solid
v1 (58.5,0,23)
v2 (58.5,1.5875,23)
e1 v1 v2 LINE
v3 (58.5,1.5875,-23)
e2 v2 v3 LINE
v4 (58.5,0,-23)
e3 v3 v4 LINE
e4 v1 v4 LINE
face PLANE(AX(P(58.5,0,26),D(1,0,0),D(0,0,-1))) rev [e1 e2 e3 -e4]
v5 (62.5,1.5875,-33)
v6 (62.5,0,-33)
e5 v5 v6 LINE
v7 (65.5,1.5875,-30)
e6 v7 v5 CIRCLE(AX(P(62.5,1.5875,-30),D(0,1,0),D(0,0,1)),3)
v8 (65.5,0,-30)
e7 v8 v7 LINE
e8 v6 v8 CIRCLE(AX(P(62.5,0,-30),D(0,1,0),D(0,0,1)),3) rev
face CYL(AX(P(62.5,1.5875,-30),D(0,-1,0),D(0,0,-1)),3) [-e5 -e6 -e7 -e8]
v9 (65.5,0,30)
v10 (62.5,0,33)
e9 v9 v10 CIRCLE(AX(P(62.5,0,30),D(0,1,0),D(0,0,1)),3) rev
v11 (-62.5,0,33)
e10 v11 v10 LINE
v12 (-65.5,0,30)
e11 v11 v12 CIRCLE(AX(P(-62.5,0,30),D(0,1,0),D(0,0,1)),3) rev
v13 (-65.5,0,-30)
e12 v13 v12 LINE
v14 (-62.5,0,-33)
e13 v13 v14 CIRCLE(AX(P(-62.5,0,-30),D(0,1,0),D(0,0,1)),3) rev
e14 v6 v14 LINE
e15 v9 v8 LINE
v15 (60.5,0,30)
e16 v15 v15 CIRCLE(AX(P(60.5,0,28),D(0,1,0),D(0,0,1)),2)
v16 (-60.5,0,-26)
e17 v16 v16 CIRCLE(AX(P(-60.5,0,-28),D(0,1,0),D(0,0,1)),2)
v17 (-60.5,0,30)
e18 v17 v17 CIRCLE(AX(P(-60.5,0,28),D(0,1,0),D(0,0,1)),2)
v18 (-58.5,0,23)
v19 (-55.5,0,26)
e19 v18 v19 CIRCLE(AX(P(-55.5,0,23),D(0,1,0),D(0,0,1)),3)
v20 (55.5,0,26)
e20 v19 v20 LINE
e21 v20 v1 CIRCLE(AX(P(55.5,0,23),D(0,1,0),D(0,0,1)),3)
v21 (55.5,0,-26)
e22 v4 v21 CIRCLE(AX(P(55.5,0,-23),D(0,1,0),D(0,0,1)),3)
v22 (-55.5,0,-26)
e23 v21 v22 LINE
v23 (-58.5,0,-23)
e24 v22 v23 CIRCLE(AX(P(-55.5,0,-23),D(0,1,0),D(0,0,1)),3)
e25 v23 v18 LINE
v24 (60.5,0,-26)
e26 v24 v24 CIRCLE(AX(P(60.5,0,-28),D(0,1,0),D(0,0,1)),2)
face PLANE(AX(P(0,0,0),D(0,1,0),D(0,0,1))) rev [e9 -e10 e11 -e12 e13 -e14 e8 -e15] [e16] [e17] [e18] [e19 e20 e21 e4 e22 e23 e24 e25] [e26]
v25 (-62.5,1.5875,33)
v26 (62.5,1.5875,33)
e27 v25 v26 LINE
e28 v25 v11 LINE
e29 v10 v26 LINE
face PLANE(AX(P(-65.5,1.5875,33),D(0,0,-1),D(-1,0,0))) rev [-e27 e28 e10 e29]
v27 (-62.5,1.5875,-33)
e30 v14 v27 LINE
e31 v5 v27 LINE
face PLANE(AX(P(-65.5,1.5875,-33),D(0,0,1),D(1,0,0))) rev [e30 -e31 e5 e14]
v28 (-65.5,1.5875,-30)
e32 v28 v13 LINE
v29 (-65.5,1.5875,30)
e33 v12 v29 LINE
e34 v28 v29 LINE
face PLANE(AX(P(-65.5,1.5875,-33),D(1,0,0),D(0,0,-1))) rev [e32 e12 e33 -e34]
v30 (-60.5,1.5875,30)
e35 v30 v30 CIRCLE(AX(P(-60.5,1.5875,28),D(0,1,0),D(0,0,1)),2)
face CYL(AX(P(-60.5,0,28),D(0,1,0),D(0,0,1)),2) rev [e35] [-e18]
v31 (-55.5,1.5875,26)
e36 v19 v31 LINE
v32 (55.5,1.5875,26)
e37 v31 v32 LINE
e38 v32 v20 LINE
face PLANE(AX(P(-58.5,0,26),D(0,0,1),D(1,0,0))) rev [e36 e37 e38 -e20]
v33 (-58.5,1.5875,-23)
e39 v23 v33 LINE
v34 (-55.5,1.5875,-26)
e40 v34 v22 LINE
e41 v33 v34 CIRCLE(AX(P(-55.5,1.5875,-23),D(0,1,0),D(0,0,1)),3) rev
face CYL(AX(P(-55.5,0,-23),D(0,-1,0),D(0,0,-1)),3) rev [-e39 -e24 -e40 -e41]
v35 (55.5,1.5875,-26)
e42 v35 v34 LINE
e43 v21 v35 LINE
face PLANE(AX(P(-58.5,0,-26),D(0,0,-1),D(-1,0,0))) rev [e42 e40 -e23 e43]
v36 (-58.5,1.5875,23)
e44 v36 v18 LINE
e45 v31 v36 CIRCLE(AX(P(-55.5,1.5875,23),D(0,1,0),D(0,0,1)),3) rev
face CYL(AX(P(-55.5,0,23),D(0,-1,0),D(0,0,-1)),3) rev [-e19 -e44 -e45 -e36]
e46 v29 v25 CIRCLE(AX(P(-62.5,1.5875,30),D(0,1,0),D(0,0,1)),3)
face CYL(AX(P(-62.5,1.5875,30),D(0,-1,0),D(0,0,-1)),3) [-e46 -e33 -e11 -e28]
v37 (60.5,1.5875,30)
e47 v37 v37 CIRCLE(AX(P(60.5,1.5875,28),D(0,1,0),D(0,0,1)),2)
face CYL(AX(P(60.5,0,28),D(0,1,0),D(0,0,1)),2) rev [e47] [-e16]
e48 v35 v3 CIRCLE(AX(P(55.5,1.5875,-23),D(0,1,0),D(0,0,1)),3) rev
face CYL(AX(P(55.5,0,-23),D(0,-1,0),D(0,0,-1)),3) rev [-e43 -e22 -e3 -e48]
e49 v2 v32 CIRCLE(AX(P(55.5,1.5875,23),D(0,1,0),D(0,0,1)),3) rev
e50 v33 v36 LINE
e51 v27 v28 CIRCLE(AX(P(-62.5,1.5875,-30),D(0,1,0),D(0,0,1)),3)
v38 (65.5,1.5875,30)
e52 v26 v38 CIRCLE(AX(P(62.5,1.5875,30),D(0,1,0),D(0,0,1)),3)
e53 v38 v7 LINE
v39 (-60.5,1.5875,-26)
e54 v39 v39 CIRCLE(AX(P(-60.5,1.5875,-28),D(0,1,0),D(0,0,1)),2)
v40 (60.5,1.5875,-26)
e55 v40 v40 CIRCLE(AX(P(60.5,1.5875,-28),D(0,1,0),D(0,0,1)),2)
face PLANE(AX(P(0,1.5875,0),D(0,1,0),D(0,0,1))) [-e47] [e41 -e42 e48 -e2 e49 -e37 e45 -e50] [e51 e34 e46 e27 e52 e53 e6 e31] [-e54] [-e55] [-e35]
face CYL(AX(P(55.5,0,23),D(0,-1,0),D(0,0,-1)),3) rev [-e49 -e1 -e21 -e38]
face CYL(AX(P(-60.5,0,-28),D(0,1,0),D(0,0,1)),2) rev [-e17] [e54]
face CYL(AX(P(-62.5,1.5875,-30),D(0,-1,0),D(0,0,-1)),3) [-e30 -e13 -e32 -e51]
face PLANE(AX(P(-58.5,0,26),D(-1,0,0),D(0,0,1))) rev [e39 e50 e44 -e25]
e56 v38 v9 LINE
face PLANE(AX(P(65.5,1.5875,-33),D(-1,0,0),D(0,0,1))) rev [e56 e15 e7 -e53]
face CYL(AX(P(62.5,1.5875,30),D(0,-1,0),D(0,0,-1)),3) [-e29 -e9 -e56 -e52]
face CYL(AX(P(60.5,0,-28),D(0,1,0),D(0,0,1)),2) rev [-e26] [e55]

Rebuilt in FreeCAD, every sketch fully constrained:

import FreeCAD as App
import Part
import Sketcher

V = App.Vector
Q = App.Units.Quantity


def edges_at(feature, points):
    """Names of the edges that pass closest to the given points."""
    edges = feature.Shape.Edges
    near = lambda p: min(range(len(edges)), key=lambda i: edges[i].distToShape(Part.Vertex(*p))[0])
    return sorted({f"Edge{near(p) + 1}" for p in points})

doc = App.newDocument("Part")
body = doc.addObject("PartDesign::Body", "Body")

sketch1 = doc.addObject("Sketcher::SketchObject", "Sketch")
body.addObject(sketch1)
sketch1.AttachmentSupport = (doc.XZ_Plane, [""])
sketch1.MapMode = "FlatFace"
sketch1.addGeometry([
    Part.LineSegment(V(-66, -33, 0), V(-66, 33, 0)),
    Part.LineSegment(V(-66, 33, 0), V(66, 33, 0)),
    Part.LineSegment(V(66, 33, 0), V(66, -33, 0)),
    Part.LineSegment(V(66, -33, 0), V(-66, -33, 0)),
], False)
sketch1.addConstraint([
    Sketcher.Constraint("Coincident", 0, 2, 1, 1),
    Sketcher.Constraint("Coincident", 1, 2, 2, 1),
    Sketcher.Constraint("Coincident", 2, 2, 3, 1),
    Sketcher.Constraint("Coincident", 3, 2, 0, 1),
    Sketcher.Constraint("Vertical", 0),
    Sketcher.Constraint("Horizontal", 1),
    Sketcher.Constraint("Vertical", 2),
    Sketcher.Constraint("Horizontal", 3),
    Sketcher.Constraint("Symmetric", 0, 2, 2, 2, -1, 1),
    Sketcher.Constraint("DistanceX", 1, 1, 1, 2, Q("131 mm")),
    Sketcher.Constraint("DistanceY", 0, 1, 0, 2, Q("66 mm")),
])
pad1 = doc.addObject("PartDesign::Pad", "Pad")
body.addObject(pad1)
pad1.Profile = sketch1
pad1.Length = 1.5875
pad1.Reversed = True

sketch2 = doc.addObject("Sketcher::SketchObject", "Sketch001")
body.addObject(sketch2)
sketch2.AttachmentSupport = (doc.XZ_Plane, [""])
sketch2.MapMode = "FlatFace"
sketch2.AttachmentOffset = App.Placement(V(0, 0, -1.5875), App.Rotation())
sketch2.addGeometry([
    Part.LineSegment(V(-58, -26, 0), V(-58, 26, 0)),
    Part.LineSegment(V(-58, 26, 0), V(58, 26, 0)),
    Part.LineSegment(V(58, 26, 0), V(58, -26, 0)),
    Part.LineSegment(V(58, -26, 0), V(-58, -26, 0)),
], False)
sketch2.addConstraint([
    Sketcher.Constraint("Coincident", 0, 2, 1, 1),
    Sketcher.Constraint("Coincident", 1, 2, 2, 1),
    Sketcher.Constraint("Coincident", 2, 2, 3, 1),
    Sketcher.Constraint("Coincident", 3, 2, 0, 1),
    Sketcher.Constraint("Vertical", 0),
    Sketcher.Constraint("Horizontal", 1),
    Sketcher.Constraint("Vertical", 2),
    Sketcher.Constraint("Horizontal", 3),
    Sketcher.Constraint("Symmetric", 0, 2, 2, 2, -1, 1),
    Sketcher.Constraint("DistanceX", 1, 1, 1, 2, Q("117 mm")),
    Sketcher.Constraint("DistanceY", 0, 1, 0, 2, Q("52 mm")),
])
pocket1 = doc.addObject("PartDesign::Pocket", "Pocket")
body.addObject(pocket1)
pocket1.Profile = sketch2
pocket1.Type = "ThroughAll"
pocket1.Reversed = True

sketch3 = doc.addObject("Sketcher::SketchObject", "Sketch002")
body.addObject(sketch3)
sketch3.AttachmentSupport = (doc.XZ_Plane, [""])
sketch3.MapMode = "FlatFace"
sketch3.AttachmentOffset = App.Placement(V(0, 0, -1.5875), App.Rotation())
sketch3.addGeometry([
    Part.Circle(V(-60.5, -28, 0), V(0, 0, 1), 2),
    Part.Circle(V(60.5, -28, 0), V(0, 0, 1), 2),
    Part.Circle(V(60.5, 28, 0), V(0, 0, 1), 2),
    Part.Circle(V(-60.5, 28, 0), V(0, 0, 1), 2),
], False)
sketch3.addConstraint([
    Sketcher.Constraint("Equal", 0, 1),
    Sketcher.Constraint("Equal", 1, 2),
    Sketcher.Constraint("Equal", 2, 3),
    Sketcher.Constraint("Symmetric", 0, 3, 2, 3, -1, 1),
    Sketcher.Constraint("Symmetric", 1, 3, 3, 3, -1, 1),
    Sketcher.Constraint("Symmetric", 0, 3, 1, 3, -2),
    Sketcher.Constraint("Diameter", 0, Q("4 mm")),
    Sketcher.Constraint("DistanceY", 0, 3, -1, 1, Q("28 mm")),
    Sketcher.Constraint("DistanceX", 0, 3, 1, 3, Q("121 mm")),
])
pocket2 = doc.addObject("PartDesign::Pocket", "Pocket001")
body.addObject(pocket2)
pocket2.Profile = sketch3
pocket2.Type = "ThroughAll"
pocket2.Reversed = True
doc.recompute()

fillet = doc.addObject("PartDesign::Fillet", "Fillet")
body.addObject(fillet)
fillet.Base = (pocket2, edges_at(pocket2, [
    (-58.5, 0.794, 26),
    (-58.5, 0.794, -26),
    (58.5, 0.794, -26),
    (58.5, 0.794, 26),
    (-65.5, 0.794, -33),
    (65.5, 0.794, -33),
    (65.5, 0.794, 33),
    (-65.5, 0.794, 33),
]))
fillet.Radius = 3

doc.recompute()
